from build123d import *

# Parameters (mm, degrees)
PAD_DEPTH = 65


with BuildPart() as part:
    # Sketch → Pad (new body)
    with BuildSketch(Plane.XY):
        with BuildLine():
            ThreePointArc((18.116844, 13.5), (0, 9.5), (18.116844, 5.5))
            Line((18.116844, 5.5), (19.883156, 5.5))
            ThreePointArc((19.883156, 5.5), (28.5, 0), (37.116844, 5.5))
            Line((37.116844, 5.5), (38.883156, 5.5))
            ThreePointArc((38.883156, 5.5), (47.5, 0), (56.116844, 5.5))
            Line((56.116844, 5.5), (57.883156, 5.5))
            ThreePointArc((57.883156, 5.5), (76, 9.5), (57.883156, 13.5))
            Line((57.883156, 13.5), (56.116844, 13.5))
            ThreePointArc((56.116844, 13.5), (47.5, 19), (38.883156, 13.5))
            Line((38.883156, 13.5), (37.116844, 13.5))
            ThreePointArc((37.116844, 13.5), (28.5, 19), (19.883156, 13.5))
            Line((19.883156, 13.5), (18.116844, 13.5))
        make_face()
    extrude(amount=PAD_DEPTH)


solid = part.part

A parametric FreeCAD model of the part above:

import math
import FreeCAD as App
import Part
import Sketcher
from FreeCAD import Vector
Q = App.Units.Quantity

doc = App.newDocument("Part")
body = doc.addObject("PartDesign::Body", "Body")

# Sketch on XY plane
sketch1 = doc.addObject("Sketcher::SketchObject", "Sketch")
body.addObject(sketch1)
sketch1.AttachmentSupport = (doc.XY_Plane, [""])
sketch1.MapMode = "FlatFace"
sketch1.addGeometry([
    Part.ArcOfCircle(Part.Circle(Vector(9.5, 9.5, 0), Vector(0, 0, 1), 9.5), math.radians(24.901062), math.radians(335.098938)),  # 0
    Part.LineSegment(Vector(18.116844, 5.5, 0), Vector(19.883156, 5.5, 0)),  # 1
    Part.ArcOfCircle(Part.Circle(Vector(28.5, 9.5, 0), Vector(0, 0, 1), 9.5), math.radians(-155.098937), math.radians(-24.901063)),  # 2
    Part.LineSegment(Vector(37.116844, 5.5, 0), Vector(38.883156, 5.5, 0)),  # 3
    Part.ArcOfCircle(Part.Circle(Vector(47.5, 9.5, 0), Vector(0, 0, 1), 9.5), math.radians(-155.098937), math.radians(-24.901063)),  # 4
    Part.LineSegment(Vector(56.116844, 5.5, 0), Vector(57.883156, 5.5, 0)),  # 5
    Part.ArcOfCircle(Part.Circle(Vector(66.5, 9.5, 0), Vector(0, 0, 1), 9.5), math.radians(-155.098938), math.radians(155.098938)),  # 6
    Part.LineSegment(Vector(57.883156, 13.5, 0), Vector(56.116844, 13.5, 0)),  # 7
    Part.ArcOfCircle(Part.Circle(Vector(47.5, 9.5, 0), Vector(0, 0, 1), 9.5), math.radians(24.901063), math.radians(155.098937)),  # 8
    Part.LineSegment(Vector(38.883156, 13.5, 0), Vector(37.116844, 13.5, 0)),  # 9
    Part.ArcOfCircle(Part.Circle(Vector(28.5, 9.5, 0), Vector(0, 0, 1), 9.5), math.radians(24.901063), math.radians(155.098937)),  # 10
    Part.LineSegment(Vector(19.883156, 13.5, 0), Vector(18.116844, 13.5, 0)),  # 11
], False)
sketch1.addConstraint([
    Sketcher.Constraint("Coincident", 0, 2, 1, 1),
    Sketcher.Constraint("Coincident", 1, 2, 2, 1),
    Sketcher.Constraint("Coincident", 2, 2, 3, 1),
    Sketcher.Constraint("Coincident", 3, 2, 4, 1),
    Sketcher.Constraint("Coincident", 4, 2, 5, 1),
    Sketcher.Constraint("Coincident", 5, 2, 6, 1),
    Sketcher.Constraint("Coincident", 6, 2, 7, 1),
    Sketcher.Constraint("Coincident", 7, 2, 8, 1),
    Sketcher.Constraint("Coincident", 8, 2, 9, 1),
    Sketcher.Constraint("Coincident", 9, 2, 10, 1),
    Sketcher.Constraint("Coincident", 10, 2, 11, 1),
    Sketcher.Constraint("Coincident", 11, 2, 0, 1),
    Sketcher.Constraint("Horizontal", 1),
    Sketcher.Constraint("Horizontal", 3),
    Sketcher.Constraint("Horizontal", 5),
    Sketcher.Constraint("Horizontal", 7),
    Sketcher.Constraint("Horizontal", 9),
    Sketcher.Constraint("Horizontal", 11),
    Sketcher.Constraint("Coincident", 8, 3, 4, 3),
    Sketcher.Constraint("Coincident", 10, 3, 2, 3),
    Sketcher.Constraint("Equal", 0, 2),
    Sketcher.Constraint("Equal", 2, 4),
    Sketcher.Constraint("Equal", 4, 6),
    Sketcher.Constraint("Equal", 6, 8),
    Sketcher.Constraint("Equal", 8, 10),
    Sketcher.Constraint("Horizontal", 0, 3, 2, 3),
    Sketcher.Constraint("Horizontal", 2, 3, 4, 3),
    Sketcher.Constraint("Horizontal", 4, 3, 6, 3),
    Sketcher.Constraint("Horizontal", 1, 2, 2, 2),
    Sketcher.Constraint("Horizontal", 3, 2, 4, 2),
    Sketcher.Constraint("Horizontal", 7, 2, 8, 2),
    Sketcher.Constraint("Horizontal", 9, 2, 10, 2),
    Sketcher.Constraint("Vertical", 5, 2, 6, 2),
    Sketcher.Constraint("Equal", 1, 3),
    Sketcher.Constraint("Equal", 3, 5),
    Sketcher.Constraint("Radius", 0, Q("9.5 mm")),
    Sketcher.Constraint("DistanceX", 0, 3, 2, 3, Q("19 mm")),
    Sketcher.Constraint("DistanceY", 0, 2, 0, 3, Q("4 mm")),
    Sketcher.Constraint("DistanceX", -1, 1, 0, 3, Q("9.5 mm")),
    Sketcher.Constraint("DistanceY", -1, 1, 0, 3, Q("9.5 mm")),
])
pad1 = doc.addObject("PartDesign::Pad", "Pad")
body.addObject(pad1)
pad1.Profile = sketch1
pad1.Length = 65

doc.recompute()
